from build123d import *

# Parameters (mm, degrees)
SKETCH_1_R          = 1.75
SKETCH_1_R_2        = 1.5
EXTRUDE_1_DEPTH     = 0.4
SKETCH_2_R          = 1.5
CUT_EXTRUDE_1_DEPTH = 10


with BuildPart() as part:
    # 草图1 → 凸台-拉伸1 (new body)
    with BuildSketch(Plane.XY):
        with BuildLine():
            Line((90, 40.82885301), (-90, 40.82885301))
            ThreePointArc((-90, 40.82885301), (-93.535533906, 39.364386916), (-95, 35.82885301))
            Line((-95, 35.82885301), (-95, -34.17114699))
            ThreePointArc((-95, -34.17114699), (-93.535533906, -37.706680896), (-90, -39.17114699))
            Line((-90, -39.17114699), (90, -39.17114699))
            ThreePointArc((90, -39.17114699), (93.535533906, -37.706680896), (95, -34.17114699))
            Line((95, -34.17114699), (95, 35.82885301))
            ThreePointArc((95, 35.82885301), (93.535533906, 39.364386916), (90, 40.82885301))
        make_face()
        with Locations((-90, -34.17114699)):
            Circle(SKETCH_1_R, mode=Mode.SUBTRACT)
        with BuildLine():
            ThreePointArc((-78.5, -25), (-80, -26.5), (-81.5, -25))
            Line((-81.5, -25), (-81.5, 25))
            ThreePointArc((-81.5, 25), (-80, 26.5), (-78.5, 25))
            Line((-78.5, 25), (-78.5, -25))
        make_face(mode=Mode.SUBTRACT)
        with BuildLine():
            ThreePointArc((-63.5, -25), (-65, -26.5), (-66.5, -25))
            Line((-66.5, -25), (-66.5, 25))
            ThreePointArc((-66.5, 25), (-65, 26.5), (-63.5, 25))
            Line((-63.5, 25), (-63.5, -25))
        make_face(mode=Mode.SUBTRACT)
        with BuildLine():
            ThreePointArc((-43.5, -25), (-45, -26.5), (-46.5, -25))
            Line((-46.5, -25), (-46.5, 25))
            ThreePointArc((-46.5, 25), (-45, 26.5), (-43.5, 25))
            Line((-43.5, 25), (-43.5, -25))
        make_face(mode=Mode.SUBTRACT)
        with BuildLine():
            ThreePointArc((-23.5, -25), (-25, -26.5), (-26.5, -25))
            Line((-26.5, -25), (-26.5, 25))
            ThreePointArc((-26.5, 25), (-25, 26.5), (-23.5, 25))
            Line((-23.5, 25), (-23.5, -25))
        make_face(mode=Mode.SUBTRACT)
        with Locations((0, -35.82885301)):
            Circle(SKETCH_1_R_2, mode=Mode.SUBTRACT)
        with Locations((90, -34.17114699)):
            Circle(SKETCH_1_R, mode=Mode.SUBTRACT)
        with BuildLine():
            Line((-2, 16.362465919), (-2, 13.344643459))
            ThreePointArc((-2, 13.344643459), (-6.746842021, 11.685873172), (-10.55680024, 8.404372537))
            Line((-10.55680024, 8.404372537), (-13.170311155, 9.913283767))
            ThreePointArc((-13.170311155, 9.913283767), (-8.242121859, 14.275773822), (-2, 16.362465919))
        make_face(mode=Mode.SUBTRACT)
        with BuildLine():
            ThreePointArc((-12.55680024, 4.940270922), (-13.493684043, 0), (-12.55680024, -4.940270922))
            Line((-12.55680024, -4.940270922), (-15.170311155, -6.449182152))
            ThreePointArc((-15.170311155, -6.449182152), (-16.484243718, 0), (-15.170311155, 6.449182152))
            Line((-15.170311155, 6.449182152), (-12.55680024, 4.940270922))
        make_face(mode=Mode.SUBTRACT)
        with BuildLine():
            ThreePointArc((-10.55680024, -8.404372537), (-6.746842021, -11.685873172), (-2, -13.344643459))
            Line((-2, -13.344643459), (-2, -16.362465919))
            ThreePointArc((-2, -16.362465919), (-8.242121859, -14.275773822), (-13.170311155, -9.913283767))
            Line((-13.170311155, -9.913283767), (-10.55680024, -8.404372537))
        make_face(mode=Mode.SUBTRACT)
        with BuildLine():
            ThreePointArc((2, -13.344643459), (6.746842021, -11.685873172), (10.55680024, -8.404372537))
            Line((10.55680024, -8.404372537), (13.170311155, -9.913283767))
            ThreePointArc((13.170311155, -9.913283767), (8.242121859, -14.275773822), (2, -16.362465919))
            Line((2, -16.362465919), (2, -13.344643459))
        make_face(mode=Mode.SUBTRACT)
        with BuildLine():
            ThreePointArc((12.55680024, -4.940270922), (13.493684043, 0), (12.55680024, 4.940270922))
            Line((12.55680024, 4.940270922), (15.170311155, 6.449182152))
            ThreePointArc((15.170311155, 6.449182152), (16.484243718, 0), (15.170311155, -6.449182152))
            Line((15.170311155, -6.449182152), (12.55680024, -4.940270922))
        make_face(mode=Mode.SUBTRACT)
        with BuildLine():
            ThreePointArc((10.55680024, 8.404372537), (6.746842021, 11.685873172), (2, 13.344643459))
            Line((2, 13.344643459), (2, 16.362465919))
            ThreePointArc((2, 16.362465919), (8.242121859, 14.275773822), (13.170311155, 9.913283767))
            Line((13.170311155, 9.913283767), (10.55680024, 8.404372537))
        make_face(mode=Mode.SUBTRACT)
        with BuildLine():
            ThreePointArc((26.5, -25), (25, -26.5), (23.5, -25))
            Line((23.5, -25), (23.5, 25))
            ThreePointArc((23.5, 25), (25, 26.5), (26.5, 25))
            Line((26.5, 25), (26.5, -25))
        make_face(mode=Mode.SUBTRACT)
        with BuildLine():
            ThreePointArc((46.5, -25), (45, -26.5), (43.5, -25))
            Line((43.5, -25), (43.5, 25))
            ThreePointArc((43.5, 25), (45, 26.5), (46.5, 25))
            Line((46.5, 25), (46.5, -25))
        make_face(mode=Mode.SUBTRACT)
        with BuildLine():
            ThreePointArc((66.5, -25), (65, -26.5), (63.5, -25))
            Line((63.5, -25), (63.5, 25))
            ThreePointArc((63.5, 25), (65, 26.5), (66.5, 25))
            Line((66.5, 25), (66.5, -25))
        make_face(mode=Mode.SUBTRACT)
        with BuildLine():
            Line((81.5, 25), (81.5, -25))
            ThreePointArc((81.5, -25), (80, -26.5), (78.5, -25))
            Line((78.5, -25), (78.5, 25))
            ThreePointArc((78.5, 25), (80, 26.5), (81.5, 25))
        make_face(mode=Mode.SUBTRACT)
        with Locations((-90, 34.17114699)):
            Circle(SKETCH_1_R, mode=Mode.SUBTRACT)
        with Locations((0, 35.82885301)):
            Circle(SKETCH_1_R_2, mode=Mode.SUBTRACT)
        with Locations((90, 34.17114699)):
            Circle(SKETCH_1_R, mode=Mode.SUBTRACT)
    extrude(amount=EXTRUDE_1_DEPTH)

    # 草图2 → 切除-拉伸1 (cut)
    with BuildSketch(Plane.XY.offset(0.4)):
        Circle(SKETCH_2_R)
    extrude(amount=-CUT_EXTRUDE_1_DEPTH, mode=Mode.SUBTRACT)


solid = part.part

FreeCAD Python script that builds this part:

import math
import FreeCAD as App
import Part
import Sketcher
from FreeCAD import Vector
Q = App.Units.Quantity

doc = App.newDocument("Part")
body = doc.addObject("PartDesign::Body", "Body")

# Sketch on XY plane
sketch1 = body.newObject("Sketcher::SketchObject", "Sketch")
sketch1.AttachmentSupport = (doc.getObject("XY_Plane"), [""])
sketch1.MapMode = "FlatFace"
sketch1.addGeometry([
    Part.LineSegment(Vector(90, 40.828853, 0), Vector(-90, 40.828853, 0)),  # 0
    Part.ArcOfCircle(Part.Circle(Vector(-90, 35.828853, 0), Vector(0, 0, 1), 5), math.radians(90), math.radians(180)),  # 1
    Part.LineSegment(Vector(-95, 35.828853, 0), Vector(-95, -34.171147, 0)),  # 2
    Part.ArcOfCircle(Part.Circle(Vector(-90, -34.171147, 0), Vector(0, 0, 1), 5), math.radians(180), math.radians(270)),  # 3
    Part.LineSegment(Vector(-90, -39.171147, 0), Vector(90, -39.171147, 0)),  # 4
    Part.ArcOfCircle(Part.Circle(Vector(90, -34.171147, 0), Vector(0, 0, 1), 5), math.radians(-90), math.radians(0)),  # 5
    Part.LineSegment(Vector(95, -34.171147, 0), Vector(95, 35.828853, 0)),  # 6
    Part.ArcOfCircle(Part.Circle(Vector(90, 35.828853, 0), Vector(0, 0, 1), 5), math.radians(0), math.radians(90)),  # 7
    Part.Circle(Vector(-90, -34.171147, 0), Vector(0, 0, 1), 1.75),  # 8
    Part.LineSegment(Vector(-13.170311, -9.913284, 0), Vector(-10.5568, -8.404373, 0)),  # 9
    Part.ArcOfCircle(Part.Circle(Vector(0, 0, 0), Vector(0, 0, 1), 13.493684), math.radians(-141.476358), math.radians(-98.523642)),  # 10
    Part.LineSegment(Vector(-2, -13.344643, 0), Vector(-2, -16.362466, 0)),  # 11
    Part.ArcOfCircle(Part.Circle(Vector(0, 0, 0), Vector(0, 0, 1), 16.484244), math.radians(-143.03125), math.radians(-96.96875)),  # 12
    Part.Circle(Vector(0, -35.828853, 0), Vector(0, 0, 1), 1.5),  # 13
    Part.Circle(Vector(90, -34.171147, 0), Vector(0, 0, 1), 1.75),  # 14
    Part.LineSegment(Vector(2, -16.362466, 0), Vector(2, -13.344643, 0)),  # 15
    Part.ArcOfCircle(Part.Circle(Vector(0, 0, 0), Vector(0, 0, 1), 13.493684), math.radians(-81.476358), math.radians(-38.523642)),  # 16
    Part.LineSegment(Vector(10.5568, -8.404373, 0), Vector(13.170311, -9.913284, 0)),  # 17
    Part.ArcOfCircle(Part.Circle(Vector(0, 0, 0), Vector(0, 0, 1), 16.484244), math.radians(-83.03125), math.radians(-36.96875)),  # 18
    Part.LineSegment(Vector(-78.5, 25, 0), Vector(-78.5, -25, 0)),  # 19
    Part.ArcOfCircle(Part.Circle(Vector(-80, -25, 0), Vector(0, 0, 1), 1.5), math.radians(180), math.radians(360)),  # 20
    Part.LineSegment(Vector(-81.5, -25, 0), Vector(-81.5, 25, 0)),  # 21
    Part.ArcOfCircle(Part.Circle(Vector(-80, 25, 0), Vector(0, 0, 1), 1.5), math.radians(0), math.radians(180)),  # 22
    Part.LineSegment(Vector(-63.5, 25, 0), Vector(-63.5, -25, 0)),  # 23
    Part.ArcOfCircle(Part.Circle(Vector(-65, -25, 0), Vector(0, 0, 1), 1.5), math.radians(180), math.radians(360)),  # 24
    Part.LineSegment(Vector(-66.5, -25, 0), Vector(-66.5, 25, 0)),  # 25
    Part.ArcOfCircle(Part.Circle(Vector(-65, 25, 0), Vector(0, 0, 1), 1.5), math.radians(0), math.radians(180)),  # 26
    Part.LineSegment(Vector(-43.5, 25, 0), Vector(-43.5, -25, 0)),  # 27
    Part.ArcOfCircle(Part.Circle(Vector(-45, -25, 0), Vector(0, 0, 1), 1.5), math.radians(180), math.radians(360)),  # 28
    Part.LineSegment(Vector(-46.5, -25, 0), Vector(-46.5, 25, 0)),  # 29
    Part.ArcOfCircle(Part.Circle(Vector(-45, 25, 0), Vector(0, 0, 1), 1.5), math.radians(0), math.radians(180)),  # 30
    Part.LineSegment(Vector(-23.5, 25, 0), Vector(-23.5, -25, 0)),  # 31
    Part.ArcOfCircle(Part.Circle(Vector(-25, -25, 0), Vector(0, 0, 1), 1.5), math.radians(180), math.radians(360)),  # 32
    Part.LineSegment(Vector(-26.5, -25, 0), Vector(-26.5, 25, 0)),  # 33
    Part.ArcOfCircle(Part.Circle(Vector(-25, 25, 0), Vector(0, 0, 1), 1.5), math.radians(0), math.radians(180)),  # 34
    Part.LineSegment(Vector(-15.170311, 6.449182, 0), Vector(-12.5568, 4.940271, 0)),  # 35
    Part.ArcOfCircle(Part.Circle(Vector(0, 0, 0), Vector(0, 0, 1), 13.493684), math.radians(158.523642), math.radians(201.476358)),  # 36
    Part.LineSegment(Vector(-12.5568, -4.940271, 0), Vector(-15.170311, -6.449182, 0)),  # 37
    Part.ArcOfCircle(Part.Circle(Vector(0, 0, 0), Vector(0, 0, 1), 16.484244), math.radians(156.96875), math.radians(203.03125)),  # 38
    Part.ArcOfCircle(Part.Circle(Vector(0, 0, 0), Vector(0, 0, 1), 16.484244), math.radians(96.96875), math.radians(143.03125)),  # 39
    Part.LineSegment(Vector(-2, 16.362466, 0), Vector(-2, 13.344643, 0)),  # 40
    Part.ArcOfCircle(Part.Circle(Vector(0, 0, 0), Vector(0, 0, 1), 13.493684), math.radians(98.523642), math.radians(141.476358)),  # 41
    Part.LineSegment(Vector(-10.5568, 8.404373, 0), Vector(-13.170311, 9.913284, 0)),  # 42
    Part.Circle(Vector(-90, 34.171147, 0), Vector(0, 0, 1), 1.75),  # 43
    Part.LineSegment(Vector(15.170311, -6.449182, 0), Vector(12.5568, -4.940271, 0)),  # 44
    Part.ArcOfCircle(Part.Circle(Vector(0, 0, 0), Vector(0, 0, 1), 13.493684), math.radians(-21.476358), math.radians(21.476358)),  # 45
    Part.LineSegment(Vector(12.5568, 4.940271, 0), Vector(15.170311, 6.449182, 0)),  # 46
    Part.ArcOfCircle(Part.Circle(Vector(0, 0, 0), Vector(0, 0, 1), 16.484244), math.radians(-23.03125), math.radians(23.03125)),  # 47
    Part.LineSegment(Vector(26.5, 25, 0), Vector(26.5, -25, 0)),  # 48
    Part.ArcOfCircle(Part.Circle(Vector(25, -25, 0), Vector(0, 0, 1), 1.5), math.radians(180), math.radians(360)),  # 49
    Part.LineSegment(Vector(23.5, -25, 0), Vector(23.5, 25, 0)),  # 50
    Part.ArcOfCircle(Part.Circle(Vector(25, 25, 0), Vector(0, 0, 1), 1.5), math.radians(0), math.radians(180)),  # 51
    Part.LineSegment(Vector(46.5, 25, 0), Vector(46.5, -25, 0)),  # 52
    Part.ArcOfCircle(Part.Circle(Vector(45, -25, 0), Vector(0, 0, 1), 1.5), math.radians(180), math.radians(360)),  # 53
    Part.LineSegment(Vector(43.5, -25, 0), Vector(43.5, 25, 0)),  # 54
    Part.ArcOfCircle(Part.Circle(Vector(45, 25, 0), Vector(0, 0, 1), 1.5), math.radians(0), math.radians(180)),  # 55
    Part.LineSegment(Vector(13.170311, 9.913284, 0), Vector(10.5568, 8.404373, 0)),  # 56
    Part.ArcOfCircle(Part.Circle(Vector(0, 0, 0), Vector(0, 0, 1), 13.493684), math.radians(38.523642), math.radians(81.476358)),  # 57
    Part.LineSegment(Vector(2, 13.344643, 0), Vector(2, 16.362466, 0)),  # 58
    Part.ArcOfCircle(Part.Circle(Vector(0, 0, 0), Vector(0, 0, 1), 16.484244), math.radians(36.96875), math.radians(83.03125)),  # 59
    Part.LineSegment(Vector(66.5, 25, 0), Vector(66.5, -25, 0)),  # 60
    Part.ArcOfCircle(Part.Circle(Vector(65, -25, 0), Vector(0, 0, 1), 1.5), math.radians(180), math.radians(360)),  # 61
    Part.LineSegment(Vector(63.5, -25, 0), Vector(63.5, 25, 0)),  # 62
    Part.ArcOfCircle(Part.Circle(Vector(65, 25, 0), Vector(0, 0, 1), 1.5), math.radians(0), math.radians(180)),  # 63
    Part.ArcOfCircle(Part.Circle(Vector(80, 25, 0), Vector(0, 0, 1), 1.5), math.radians(0), math.radians(180)),  # 64
    Part.LineSegment(Vector(81.5, 25, 0), Vector(81.5, -25, 0)),  # 65
    Part.ArcOfCircle(Part.Circle(Vector(80, -25, 0), Vector(0, 0, 1), 1.5), math.radians(180), math.radians(360)),  # 66
    Part.LineSegment(Vector(78.5, -25, 0), Vector(78.5, 25, 0)),  # 67
    Part.Circle(Vector(0, 35.828853, 0), Vector(0, 0, 1), 1.5),  # 68
    Part.Circle(Vector(90, 34.171147, 0), Vector(0, 0, 1), 1.75),  # 69
], False)
sketch1.addConstraint([
    Sketcher.Constraint("Tangent", 0, 2, 1, 1),
    Sketcher.Constraint("Tangent", 1, 2, 2, 1),
    Sketcher.Constraint("Tangent", 2, 2, 3, 1),
    Sketcher.Constraint("Tangent", 3, 2, 4, 1),
    Sketcher.Constraint("Tangent", 4, 2, 5, 1),
    Sketcher.Constraint("Tangent", 5, 2, 6, 1),
    Sketcher.Constraint("Tangent", 6, 2, 7, 1),
    Sketcher.Constraint("Tangent", 7, 2, 0, 1),
    Sketcher.Constraint("Coincident", 9, 2, 10, 1),
    Sketcher.Constraint("Coincident", 10, 2, 11, 1),
    Sketcher.Constraint("Coincident", 11, 2, 12, 2),
    Sketcher.Constraint("Coincident", 12, 1, 9, 1),
    Sketcher.Constraint("Coincident", 15, 2, 16, 1),
    Sketcher.Constraint("Coincident", 16, 2, 17, 1),
    Sketcher.Constraint("Coincident", 17, 2, 18, 2),
    Sketcher.Constraint("Coincident", 18, 1, 15, 1),
    Sketcher.Constraint("Tangent", 19, 2, 20, 2),
    Sketcher.Constraint("Tangent", 20, 1, 21, 1),
    Sketcher.Constraint("Tangent", 21, 2, 22, 2),
    Sketcher.Constraint("Tangent", 22, 1, 19, 1),
    Sketcher.Constraint("Tangent", 23, 2, 24, 2),
    Sketcher.Constraint("Tangent", 24, 1, 25, 1),
    Sketcher.Constraint("Tangent", 25, 2, 26, 2),
    Sketcher.Constraint("Tangent", 26, 1, 23, 1),
    Sketcher.Constraint("Tangent", 27, 2, 28, 2),
    Sketcher.Constraint("Tangent", 28, 1, 29, 1),
    Sketcher.Constraint("Tangent", 29, 2, 30, 2),
    Sketcher.Constraint("Tangent", 30, 1, 27, 1),
    Sketcher.Constraint("Tangent", 31, 2, 32, 2),
    Sketcher.Constraint("Tangent", 32, 1, 33, 1),
    Sketcher.Constraint("Tangent", 33, 2, 34, 2),
    Sketcher.Constraint("Tangent", 34, 1, 31, 1),
    Sketcher.Constraint("Coincident", 35, 2, 36, 1),
    Sketcher.Constraint("Coincident", 36, 2, 37, 1),
    Sketcher.Constraint("Coincident", 37, 2, 38, 2),
    Sketcher.Constraint("Coincident", 38, 1, 35, 1),
    Sketcher.Constraint("Coincident", 39, 1, 40, 1),
    Sketcher.Constraint("Coincident", 40, 2, 41, 1),
    Sketcher.Constraint("Coincident", 41, 2, 42, 1),
    Sketcher.Constraint("Coincident", 42, 2, 39, 2),
    Sketcher.Constraint("Coincident", 44, 2, 45, 1),
    Sketcher.Constraint("Coincident", 45, 2, 46, 1),
    Sketcher.Constraint("Coincident", 46, 2, 47, 2),
    Sketcher.Constraint("Coincident", 47, 1, 44, 1),
    Sketcher.Constraint("Tangent", 48, 2, 49, 2),
    Sketcher.Constraint("Tangent", 49, 1, 50, 1),
    Sketcher.Constraint("Tangent", 50, 2, 51, 2),
    Sketcher.Constraint("Tangent", 51, 1, 48, 1),
    Sketcher.Constraint("Tangent", 52, 2, 53, 2),
    Sketcher.Constraint("Tangent", 53, 1, 54, 1),
    Sketcher.Constraint("Tangent", 54, 2, 55, 2),
    Sketcher.Constraint("Tangent", 55, 1, 52, 1),
    Sketcher.Constraint("Coincident", 56, 2, 57, 1),
    Sketcher.Constraint("Coincident", 57, 2, 58, 1),
    Sketcher.Constraint("Coincident", 58, 2, 59, 2),
    Sketcher.Constraint("Coincident", 59, 1, 56, 1),
    Sketcher.Constraint("Tangent", 60, 2, 61, 2),
    Sketcher.Constraint("Tangent", 61, 1, 62, 1),
    Sketcher.Constraint("Tangent", 62, 2, 63, 2),
    Sketcher.Constraint("Tangent", 63, 1, 60, 1),
    Sketcher.Constraint("Tangent", 64, 1, 65, 1),
    Sketcher.Constraint("Tangent", 65, 2, 66, 2),
    Sketcher.Constraint("Tangent", 66, 1, 67, 1),
    Sketcher.Constraint("Tangent", 67, 2, 64, 2),
    Sketcher.Constraint("Horizontal", 0),
    Sketcher.Constraint("Vertical", 2),
    Sketcher.Constraint("Horizontal", 4),
    Sketcher.Constraint("Vertical", 6),
    Sketcher.Constraint("Vertical", 11),
    Sketcher.Constraint("Vertical", 15),
    Sketcher.Constraint("Vertical", 19),
    Sketcher.Constraint("Vertical", 21),
    Sketcher.Constraint("Vertical", 23),
    Sketcher.Constraint("Vertical", 25),
    Sketcher.Constraint("Vertical", 27),
    Sketcher.Constraint("Vertical", 29),
    Sketcher.Constraint("Vertical", 31),
    Sketcher.Constraint("Vertical", 33),
    Sketcher.Constraint("Vertical", 40),
    Sketcher.Constraint("Vertical", 48),
    Sketcher.Constraint("Vertical", 50),
    Sketcher.Constraint("Vertical", 52),
    Sketcher.Constraint("Vertical", 54),
    Sketcher.Constraint("Vertical", 58),
    Sketcher.Constraint("Vertical", 60),
    Sketcher.Constraint("Vertical", 62),
    Sketcher.Constraint("Vertical", 65),
    Sketcher.Constraint("Vertical", 67),
    Sketcher.Constraint("Coincident", 10, 3, -1, 1),
    Sketcher.Constraint("Coincident", 12, 3, -1, 1),
    Sketcher.Constraint("Coincident", 16, 3, -1, 1),
    Sketcher.Constraint("Coincident", 18, 3, -1, 1),
    Sketcher.Constraint("Coincident", 36, 3, -1, 1),
    Sketcher.Constraint("Coincident", 38, 3, -1, 1),
    Sketcher.Constraint("Coincident", 39, 3, -1, 1),
    Sketcher.Constraint("Coincident", 41, 3, -1, 1),
    Sketcher.Constraint("Coincident", 45, 3, -1, 1),
    Sketcher.Constraint("Coincident", 47, 3, -1, 1),
    Sketcher.Constraint("Coincident", 57, 3, -1, 1),
    Sketcher.Constraint("Coincident", 59, 3, -1, 1),
    Sketcher.Constraint("Coincident", 8, 3, 3, 3),
    Sketcher.Constraint("Coincident", 14, 3, 5, 3),
    Sketcher.Constraint("Equal", 1, 3),
    Sketcher.Constraint("Equal", 3, 5),
    Sketcher.Constraint("Equal", 5, 7),
    Sketcher.Constraint("Equal", 8, 14),
    Sketcher.Constraint("Equal", 10, 16),
    Sketcher.Constraint("Equal", 12, 18),
    Sketcher.Constraint("Equal", 13, 20),
    Sketcher.Constraint("Equal", 22, 24),
    Sketcher.Constraint("Equal", 26, 28),
    Sketcher.Constraint("Equal", 30, 32),
    Sketcher.Constraint("Equal", 16, 36),
    Sketcher.Constraint("Equal", 18, 38),
    Sketcher.Constraint("Equal", 38, 39),
    Sketcher.Constraint("Equal", 36, 41),
    Sketcher.Constraint("Equal", 14, 43),
    Sketcher.Constraint("Equal", 41, 45),
    Sketcher.Constraint("Equal", 39, 47),
    Sketcher.Constraint("Equal", 34, 49),
    Sketcher.Constraint("Equal", 51, 53),
    Sketcher.Constraint("Equal", 45, 57),
    Sketcher.Constraint("Equal", 47, 59),
    Sketcher.Constraint("Equal", 55, 61),
    Sketcher.Constraint("Equal", 63, 64),
    Sketcher.Constraint("Equal", 66, 68),
    Sketcher.Constraint("Equal", 43, 69),
    Sketcher.Constraint("Symmetric", 5, 3, 43, 3, -1, 1),
    Sketcher.Constraint("Symmetric", 34, 3, 49, 3, -1, 1),
    Sketcher.Constraint("Symmetric", 30, 3, 53, 3, -1, 1),
    Sketcher.Constraint("Symmetric", 26, 3, 61, 3, -1, 1),
    Sketcher.Constraint("Symmetric", 20, 3, 64, 3, -1, 1),
    Sketcher.Constraint("Symmetric", 13, 3, 68, 3, -1, 1),
    Sketcher.Constraint("Symmetric", 3, 3, 69, 3, -1, 1),
    Sketcher.Constraint("PointOnObject", 13, 3, -2),
    Sketcher.Constraint("Parallel", 17, 35),
    Sketcher.Constraint("Parallel", 9, 37),
    Sketcher.Constraint("Parallel", 35, 42),
    Sketcher.Constraint("Parallel", 42, 44),
    Sketcher.Constraint("Parallel", 37, 46),
    Sketcher.Constraint("Parallel", 46, 56),
    Sketcher.Constraint("Horizontal", 20, 3, 24, 3),
    Sketcher.Constraint("Horizontal", 22, 3, 26, 3),
    Sketcher.Constraint("Horizontal", 24, 3, 28, 3),
    Sketcher.Constraint("Horizontal", 26, 3, 30, 3),
    Sketcher.Constraint("Horizontal", 28, 3, 32, 3),
    Sketcher.Constraint("Horizontal", 30, 3, 34, 3),
    Sketcher.Constraint("Horizontal", 32, 3, 49, 3),
    Sketcher.Constraint("Horizontal", 34, 3, 51, 3),
    Sketcher.Constraint("Horizontal", 51, 3, 55, 3),
    Sketcher.Constraint("Horizontal", 55, 3, 63, 3),
    Sketcher.Constraint("Horizontal", 61, 3, 66, 3),
    Sketcher.Constraint("Horizontal", 7, 3, 68, 3),
    Sketcher.Constraint("Horizontal", 10, 2, 15, 2),
    Sketcher.Constraint("Horizontal", 9, 2, 16, 2),
    Sketcher.Constraint("Horizontal", 12, 1, 17, 2),
    Sketcher.Constraint("Horizontal", 36, 2, 44, 2),
    Sketcher.Constraint("Horizontal", 35, 2, 45, 2),
    Sketcher.Constraint("Horizontal", 41, 2, 56, 2),
    Sketcher.Constraint("Horizontal", 40, 2, 57, 2),
    Sketcher.Constraint("Vertical", 8, 3, 43, 3),
    Sketcher.Constraint("Vertical", 35, 2, 36, 2),
    Sketcher.Constraint("Vertical", 11, 2, 39, 1),
    Sketcher.Constraint("Vertical", 9, 2, 41, 2),
    Sketcher.Constraint("Equal", 17, 35),
    Sketcher.Constraint("Diameter", 13, 3.0),
    Sketcher.Constraint("Radius", 1, 5.0),
    Sketcher.Constraint("Diameter", 8, 3.5),
    Sketcher.Constraint("DistanceX", 0, 2, 0, 1, 180.0),
    Sketcher.Constraint("DistanceY", 2, 2, 2, 1, 70.0),
    Sketcher.Constraint("DistanceY", 19, 2, 19, 1, 50.0),
    Sketcher.Constraint("Angle", 9, Q("30 deg")),
    Sketcher.Constraint("DistanceX", 20, 3, -1, 1, 80.0),
    Sketcher.Constraint("DistanceX", 24, 3, -1, 1, 65.0),
    Sketcher.Constraint("DistanceX", 28, 3, -1, 1, 45.0),
    Sketcher.Constraint("DistanceX", 32, 3, -1, 1, 25.0),
    Sketcher.Constraint("DistanceX", 10, 2, -1, 1, 2.0),
    Sketcher.Constraint("Radius", 10, 13.493684),
    Sketcher.Constraint("Radius", 12, 16.484244),
    Sketcher.Constraint("DistanceX", 9, 2, -1, 1, 10.5568),
    Sketcher.Constraint("DistanceY", -1, 1, 1, 3, 35.828853),
])
pad1 = body.newObject("PartDesign::Pad", "Pad")
pad1.Profile = sketch1
pad1.Length = 0.4

# Sketch on XY plane
sketch2 = body.newObject("Sketcher::SketchObject", "Sketch001")
sketch2.AttachmentSupport = (doc.getObject("XY_Plane"), [""])
sketch2.MapMode = "FlatFace"
sketch2.AttachmentOffset = App.Placement(Vector(0, 0, 0.4), App.Rotation())
sketch2.addGeometry(Part.Circle(Vector(0, 0, 0), Vector(0, 0, 1), 1.5), False)
sketch2.addConstraint([
    Sketcher.Constraint("Coincident", 0, 3, -1, 1),
    Sketcher.Constraint("Diameter", 0, 3.0),
])
pocket1 = body.newObject("PartDesign::Pocket", "Pocket")
pocket1.Profile = sketch2
pocket1.Length = 10

doc.recompute()
